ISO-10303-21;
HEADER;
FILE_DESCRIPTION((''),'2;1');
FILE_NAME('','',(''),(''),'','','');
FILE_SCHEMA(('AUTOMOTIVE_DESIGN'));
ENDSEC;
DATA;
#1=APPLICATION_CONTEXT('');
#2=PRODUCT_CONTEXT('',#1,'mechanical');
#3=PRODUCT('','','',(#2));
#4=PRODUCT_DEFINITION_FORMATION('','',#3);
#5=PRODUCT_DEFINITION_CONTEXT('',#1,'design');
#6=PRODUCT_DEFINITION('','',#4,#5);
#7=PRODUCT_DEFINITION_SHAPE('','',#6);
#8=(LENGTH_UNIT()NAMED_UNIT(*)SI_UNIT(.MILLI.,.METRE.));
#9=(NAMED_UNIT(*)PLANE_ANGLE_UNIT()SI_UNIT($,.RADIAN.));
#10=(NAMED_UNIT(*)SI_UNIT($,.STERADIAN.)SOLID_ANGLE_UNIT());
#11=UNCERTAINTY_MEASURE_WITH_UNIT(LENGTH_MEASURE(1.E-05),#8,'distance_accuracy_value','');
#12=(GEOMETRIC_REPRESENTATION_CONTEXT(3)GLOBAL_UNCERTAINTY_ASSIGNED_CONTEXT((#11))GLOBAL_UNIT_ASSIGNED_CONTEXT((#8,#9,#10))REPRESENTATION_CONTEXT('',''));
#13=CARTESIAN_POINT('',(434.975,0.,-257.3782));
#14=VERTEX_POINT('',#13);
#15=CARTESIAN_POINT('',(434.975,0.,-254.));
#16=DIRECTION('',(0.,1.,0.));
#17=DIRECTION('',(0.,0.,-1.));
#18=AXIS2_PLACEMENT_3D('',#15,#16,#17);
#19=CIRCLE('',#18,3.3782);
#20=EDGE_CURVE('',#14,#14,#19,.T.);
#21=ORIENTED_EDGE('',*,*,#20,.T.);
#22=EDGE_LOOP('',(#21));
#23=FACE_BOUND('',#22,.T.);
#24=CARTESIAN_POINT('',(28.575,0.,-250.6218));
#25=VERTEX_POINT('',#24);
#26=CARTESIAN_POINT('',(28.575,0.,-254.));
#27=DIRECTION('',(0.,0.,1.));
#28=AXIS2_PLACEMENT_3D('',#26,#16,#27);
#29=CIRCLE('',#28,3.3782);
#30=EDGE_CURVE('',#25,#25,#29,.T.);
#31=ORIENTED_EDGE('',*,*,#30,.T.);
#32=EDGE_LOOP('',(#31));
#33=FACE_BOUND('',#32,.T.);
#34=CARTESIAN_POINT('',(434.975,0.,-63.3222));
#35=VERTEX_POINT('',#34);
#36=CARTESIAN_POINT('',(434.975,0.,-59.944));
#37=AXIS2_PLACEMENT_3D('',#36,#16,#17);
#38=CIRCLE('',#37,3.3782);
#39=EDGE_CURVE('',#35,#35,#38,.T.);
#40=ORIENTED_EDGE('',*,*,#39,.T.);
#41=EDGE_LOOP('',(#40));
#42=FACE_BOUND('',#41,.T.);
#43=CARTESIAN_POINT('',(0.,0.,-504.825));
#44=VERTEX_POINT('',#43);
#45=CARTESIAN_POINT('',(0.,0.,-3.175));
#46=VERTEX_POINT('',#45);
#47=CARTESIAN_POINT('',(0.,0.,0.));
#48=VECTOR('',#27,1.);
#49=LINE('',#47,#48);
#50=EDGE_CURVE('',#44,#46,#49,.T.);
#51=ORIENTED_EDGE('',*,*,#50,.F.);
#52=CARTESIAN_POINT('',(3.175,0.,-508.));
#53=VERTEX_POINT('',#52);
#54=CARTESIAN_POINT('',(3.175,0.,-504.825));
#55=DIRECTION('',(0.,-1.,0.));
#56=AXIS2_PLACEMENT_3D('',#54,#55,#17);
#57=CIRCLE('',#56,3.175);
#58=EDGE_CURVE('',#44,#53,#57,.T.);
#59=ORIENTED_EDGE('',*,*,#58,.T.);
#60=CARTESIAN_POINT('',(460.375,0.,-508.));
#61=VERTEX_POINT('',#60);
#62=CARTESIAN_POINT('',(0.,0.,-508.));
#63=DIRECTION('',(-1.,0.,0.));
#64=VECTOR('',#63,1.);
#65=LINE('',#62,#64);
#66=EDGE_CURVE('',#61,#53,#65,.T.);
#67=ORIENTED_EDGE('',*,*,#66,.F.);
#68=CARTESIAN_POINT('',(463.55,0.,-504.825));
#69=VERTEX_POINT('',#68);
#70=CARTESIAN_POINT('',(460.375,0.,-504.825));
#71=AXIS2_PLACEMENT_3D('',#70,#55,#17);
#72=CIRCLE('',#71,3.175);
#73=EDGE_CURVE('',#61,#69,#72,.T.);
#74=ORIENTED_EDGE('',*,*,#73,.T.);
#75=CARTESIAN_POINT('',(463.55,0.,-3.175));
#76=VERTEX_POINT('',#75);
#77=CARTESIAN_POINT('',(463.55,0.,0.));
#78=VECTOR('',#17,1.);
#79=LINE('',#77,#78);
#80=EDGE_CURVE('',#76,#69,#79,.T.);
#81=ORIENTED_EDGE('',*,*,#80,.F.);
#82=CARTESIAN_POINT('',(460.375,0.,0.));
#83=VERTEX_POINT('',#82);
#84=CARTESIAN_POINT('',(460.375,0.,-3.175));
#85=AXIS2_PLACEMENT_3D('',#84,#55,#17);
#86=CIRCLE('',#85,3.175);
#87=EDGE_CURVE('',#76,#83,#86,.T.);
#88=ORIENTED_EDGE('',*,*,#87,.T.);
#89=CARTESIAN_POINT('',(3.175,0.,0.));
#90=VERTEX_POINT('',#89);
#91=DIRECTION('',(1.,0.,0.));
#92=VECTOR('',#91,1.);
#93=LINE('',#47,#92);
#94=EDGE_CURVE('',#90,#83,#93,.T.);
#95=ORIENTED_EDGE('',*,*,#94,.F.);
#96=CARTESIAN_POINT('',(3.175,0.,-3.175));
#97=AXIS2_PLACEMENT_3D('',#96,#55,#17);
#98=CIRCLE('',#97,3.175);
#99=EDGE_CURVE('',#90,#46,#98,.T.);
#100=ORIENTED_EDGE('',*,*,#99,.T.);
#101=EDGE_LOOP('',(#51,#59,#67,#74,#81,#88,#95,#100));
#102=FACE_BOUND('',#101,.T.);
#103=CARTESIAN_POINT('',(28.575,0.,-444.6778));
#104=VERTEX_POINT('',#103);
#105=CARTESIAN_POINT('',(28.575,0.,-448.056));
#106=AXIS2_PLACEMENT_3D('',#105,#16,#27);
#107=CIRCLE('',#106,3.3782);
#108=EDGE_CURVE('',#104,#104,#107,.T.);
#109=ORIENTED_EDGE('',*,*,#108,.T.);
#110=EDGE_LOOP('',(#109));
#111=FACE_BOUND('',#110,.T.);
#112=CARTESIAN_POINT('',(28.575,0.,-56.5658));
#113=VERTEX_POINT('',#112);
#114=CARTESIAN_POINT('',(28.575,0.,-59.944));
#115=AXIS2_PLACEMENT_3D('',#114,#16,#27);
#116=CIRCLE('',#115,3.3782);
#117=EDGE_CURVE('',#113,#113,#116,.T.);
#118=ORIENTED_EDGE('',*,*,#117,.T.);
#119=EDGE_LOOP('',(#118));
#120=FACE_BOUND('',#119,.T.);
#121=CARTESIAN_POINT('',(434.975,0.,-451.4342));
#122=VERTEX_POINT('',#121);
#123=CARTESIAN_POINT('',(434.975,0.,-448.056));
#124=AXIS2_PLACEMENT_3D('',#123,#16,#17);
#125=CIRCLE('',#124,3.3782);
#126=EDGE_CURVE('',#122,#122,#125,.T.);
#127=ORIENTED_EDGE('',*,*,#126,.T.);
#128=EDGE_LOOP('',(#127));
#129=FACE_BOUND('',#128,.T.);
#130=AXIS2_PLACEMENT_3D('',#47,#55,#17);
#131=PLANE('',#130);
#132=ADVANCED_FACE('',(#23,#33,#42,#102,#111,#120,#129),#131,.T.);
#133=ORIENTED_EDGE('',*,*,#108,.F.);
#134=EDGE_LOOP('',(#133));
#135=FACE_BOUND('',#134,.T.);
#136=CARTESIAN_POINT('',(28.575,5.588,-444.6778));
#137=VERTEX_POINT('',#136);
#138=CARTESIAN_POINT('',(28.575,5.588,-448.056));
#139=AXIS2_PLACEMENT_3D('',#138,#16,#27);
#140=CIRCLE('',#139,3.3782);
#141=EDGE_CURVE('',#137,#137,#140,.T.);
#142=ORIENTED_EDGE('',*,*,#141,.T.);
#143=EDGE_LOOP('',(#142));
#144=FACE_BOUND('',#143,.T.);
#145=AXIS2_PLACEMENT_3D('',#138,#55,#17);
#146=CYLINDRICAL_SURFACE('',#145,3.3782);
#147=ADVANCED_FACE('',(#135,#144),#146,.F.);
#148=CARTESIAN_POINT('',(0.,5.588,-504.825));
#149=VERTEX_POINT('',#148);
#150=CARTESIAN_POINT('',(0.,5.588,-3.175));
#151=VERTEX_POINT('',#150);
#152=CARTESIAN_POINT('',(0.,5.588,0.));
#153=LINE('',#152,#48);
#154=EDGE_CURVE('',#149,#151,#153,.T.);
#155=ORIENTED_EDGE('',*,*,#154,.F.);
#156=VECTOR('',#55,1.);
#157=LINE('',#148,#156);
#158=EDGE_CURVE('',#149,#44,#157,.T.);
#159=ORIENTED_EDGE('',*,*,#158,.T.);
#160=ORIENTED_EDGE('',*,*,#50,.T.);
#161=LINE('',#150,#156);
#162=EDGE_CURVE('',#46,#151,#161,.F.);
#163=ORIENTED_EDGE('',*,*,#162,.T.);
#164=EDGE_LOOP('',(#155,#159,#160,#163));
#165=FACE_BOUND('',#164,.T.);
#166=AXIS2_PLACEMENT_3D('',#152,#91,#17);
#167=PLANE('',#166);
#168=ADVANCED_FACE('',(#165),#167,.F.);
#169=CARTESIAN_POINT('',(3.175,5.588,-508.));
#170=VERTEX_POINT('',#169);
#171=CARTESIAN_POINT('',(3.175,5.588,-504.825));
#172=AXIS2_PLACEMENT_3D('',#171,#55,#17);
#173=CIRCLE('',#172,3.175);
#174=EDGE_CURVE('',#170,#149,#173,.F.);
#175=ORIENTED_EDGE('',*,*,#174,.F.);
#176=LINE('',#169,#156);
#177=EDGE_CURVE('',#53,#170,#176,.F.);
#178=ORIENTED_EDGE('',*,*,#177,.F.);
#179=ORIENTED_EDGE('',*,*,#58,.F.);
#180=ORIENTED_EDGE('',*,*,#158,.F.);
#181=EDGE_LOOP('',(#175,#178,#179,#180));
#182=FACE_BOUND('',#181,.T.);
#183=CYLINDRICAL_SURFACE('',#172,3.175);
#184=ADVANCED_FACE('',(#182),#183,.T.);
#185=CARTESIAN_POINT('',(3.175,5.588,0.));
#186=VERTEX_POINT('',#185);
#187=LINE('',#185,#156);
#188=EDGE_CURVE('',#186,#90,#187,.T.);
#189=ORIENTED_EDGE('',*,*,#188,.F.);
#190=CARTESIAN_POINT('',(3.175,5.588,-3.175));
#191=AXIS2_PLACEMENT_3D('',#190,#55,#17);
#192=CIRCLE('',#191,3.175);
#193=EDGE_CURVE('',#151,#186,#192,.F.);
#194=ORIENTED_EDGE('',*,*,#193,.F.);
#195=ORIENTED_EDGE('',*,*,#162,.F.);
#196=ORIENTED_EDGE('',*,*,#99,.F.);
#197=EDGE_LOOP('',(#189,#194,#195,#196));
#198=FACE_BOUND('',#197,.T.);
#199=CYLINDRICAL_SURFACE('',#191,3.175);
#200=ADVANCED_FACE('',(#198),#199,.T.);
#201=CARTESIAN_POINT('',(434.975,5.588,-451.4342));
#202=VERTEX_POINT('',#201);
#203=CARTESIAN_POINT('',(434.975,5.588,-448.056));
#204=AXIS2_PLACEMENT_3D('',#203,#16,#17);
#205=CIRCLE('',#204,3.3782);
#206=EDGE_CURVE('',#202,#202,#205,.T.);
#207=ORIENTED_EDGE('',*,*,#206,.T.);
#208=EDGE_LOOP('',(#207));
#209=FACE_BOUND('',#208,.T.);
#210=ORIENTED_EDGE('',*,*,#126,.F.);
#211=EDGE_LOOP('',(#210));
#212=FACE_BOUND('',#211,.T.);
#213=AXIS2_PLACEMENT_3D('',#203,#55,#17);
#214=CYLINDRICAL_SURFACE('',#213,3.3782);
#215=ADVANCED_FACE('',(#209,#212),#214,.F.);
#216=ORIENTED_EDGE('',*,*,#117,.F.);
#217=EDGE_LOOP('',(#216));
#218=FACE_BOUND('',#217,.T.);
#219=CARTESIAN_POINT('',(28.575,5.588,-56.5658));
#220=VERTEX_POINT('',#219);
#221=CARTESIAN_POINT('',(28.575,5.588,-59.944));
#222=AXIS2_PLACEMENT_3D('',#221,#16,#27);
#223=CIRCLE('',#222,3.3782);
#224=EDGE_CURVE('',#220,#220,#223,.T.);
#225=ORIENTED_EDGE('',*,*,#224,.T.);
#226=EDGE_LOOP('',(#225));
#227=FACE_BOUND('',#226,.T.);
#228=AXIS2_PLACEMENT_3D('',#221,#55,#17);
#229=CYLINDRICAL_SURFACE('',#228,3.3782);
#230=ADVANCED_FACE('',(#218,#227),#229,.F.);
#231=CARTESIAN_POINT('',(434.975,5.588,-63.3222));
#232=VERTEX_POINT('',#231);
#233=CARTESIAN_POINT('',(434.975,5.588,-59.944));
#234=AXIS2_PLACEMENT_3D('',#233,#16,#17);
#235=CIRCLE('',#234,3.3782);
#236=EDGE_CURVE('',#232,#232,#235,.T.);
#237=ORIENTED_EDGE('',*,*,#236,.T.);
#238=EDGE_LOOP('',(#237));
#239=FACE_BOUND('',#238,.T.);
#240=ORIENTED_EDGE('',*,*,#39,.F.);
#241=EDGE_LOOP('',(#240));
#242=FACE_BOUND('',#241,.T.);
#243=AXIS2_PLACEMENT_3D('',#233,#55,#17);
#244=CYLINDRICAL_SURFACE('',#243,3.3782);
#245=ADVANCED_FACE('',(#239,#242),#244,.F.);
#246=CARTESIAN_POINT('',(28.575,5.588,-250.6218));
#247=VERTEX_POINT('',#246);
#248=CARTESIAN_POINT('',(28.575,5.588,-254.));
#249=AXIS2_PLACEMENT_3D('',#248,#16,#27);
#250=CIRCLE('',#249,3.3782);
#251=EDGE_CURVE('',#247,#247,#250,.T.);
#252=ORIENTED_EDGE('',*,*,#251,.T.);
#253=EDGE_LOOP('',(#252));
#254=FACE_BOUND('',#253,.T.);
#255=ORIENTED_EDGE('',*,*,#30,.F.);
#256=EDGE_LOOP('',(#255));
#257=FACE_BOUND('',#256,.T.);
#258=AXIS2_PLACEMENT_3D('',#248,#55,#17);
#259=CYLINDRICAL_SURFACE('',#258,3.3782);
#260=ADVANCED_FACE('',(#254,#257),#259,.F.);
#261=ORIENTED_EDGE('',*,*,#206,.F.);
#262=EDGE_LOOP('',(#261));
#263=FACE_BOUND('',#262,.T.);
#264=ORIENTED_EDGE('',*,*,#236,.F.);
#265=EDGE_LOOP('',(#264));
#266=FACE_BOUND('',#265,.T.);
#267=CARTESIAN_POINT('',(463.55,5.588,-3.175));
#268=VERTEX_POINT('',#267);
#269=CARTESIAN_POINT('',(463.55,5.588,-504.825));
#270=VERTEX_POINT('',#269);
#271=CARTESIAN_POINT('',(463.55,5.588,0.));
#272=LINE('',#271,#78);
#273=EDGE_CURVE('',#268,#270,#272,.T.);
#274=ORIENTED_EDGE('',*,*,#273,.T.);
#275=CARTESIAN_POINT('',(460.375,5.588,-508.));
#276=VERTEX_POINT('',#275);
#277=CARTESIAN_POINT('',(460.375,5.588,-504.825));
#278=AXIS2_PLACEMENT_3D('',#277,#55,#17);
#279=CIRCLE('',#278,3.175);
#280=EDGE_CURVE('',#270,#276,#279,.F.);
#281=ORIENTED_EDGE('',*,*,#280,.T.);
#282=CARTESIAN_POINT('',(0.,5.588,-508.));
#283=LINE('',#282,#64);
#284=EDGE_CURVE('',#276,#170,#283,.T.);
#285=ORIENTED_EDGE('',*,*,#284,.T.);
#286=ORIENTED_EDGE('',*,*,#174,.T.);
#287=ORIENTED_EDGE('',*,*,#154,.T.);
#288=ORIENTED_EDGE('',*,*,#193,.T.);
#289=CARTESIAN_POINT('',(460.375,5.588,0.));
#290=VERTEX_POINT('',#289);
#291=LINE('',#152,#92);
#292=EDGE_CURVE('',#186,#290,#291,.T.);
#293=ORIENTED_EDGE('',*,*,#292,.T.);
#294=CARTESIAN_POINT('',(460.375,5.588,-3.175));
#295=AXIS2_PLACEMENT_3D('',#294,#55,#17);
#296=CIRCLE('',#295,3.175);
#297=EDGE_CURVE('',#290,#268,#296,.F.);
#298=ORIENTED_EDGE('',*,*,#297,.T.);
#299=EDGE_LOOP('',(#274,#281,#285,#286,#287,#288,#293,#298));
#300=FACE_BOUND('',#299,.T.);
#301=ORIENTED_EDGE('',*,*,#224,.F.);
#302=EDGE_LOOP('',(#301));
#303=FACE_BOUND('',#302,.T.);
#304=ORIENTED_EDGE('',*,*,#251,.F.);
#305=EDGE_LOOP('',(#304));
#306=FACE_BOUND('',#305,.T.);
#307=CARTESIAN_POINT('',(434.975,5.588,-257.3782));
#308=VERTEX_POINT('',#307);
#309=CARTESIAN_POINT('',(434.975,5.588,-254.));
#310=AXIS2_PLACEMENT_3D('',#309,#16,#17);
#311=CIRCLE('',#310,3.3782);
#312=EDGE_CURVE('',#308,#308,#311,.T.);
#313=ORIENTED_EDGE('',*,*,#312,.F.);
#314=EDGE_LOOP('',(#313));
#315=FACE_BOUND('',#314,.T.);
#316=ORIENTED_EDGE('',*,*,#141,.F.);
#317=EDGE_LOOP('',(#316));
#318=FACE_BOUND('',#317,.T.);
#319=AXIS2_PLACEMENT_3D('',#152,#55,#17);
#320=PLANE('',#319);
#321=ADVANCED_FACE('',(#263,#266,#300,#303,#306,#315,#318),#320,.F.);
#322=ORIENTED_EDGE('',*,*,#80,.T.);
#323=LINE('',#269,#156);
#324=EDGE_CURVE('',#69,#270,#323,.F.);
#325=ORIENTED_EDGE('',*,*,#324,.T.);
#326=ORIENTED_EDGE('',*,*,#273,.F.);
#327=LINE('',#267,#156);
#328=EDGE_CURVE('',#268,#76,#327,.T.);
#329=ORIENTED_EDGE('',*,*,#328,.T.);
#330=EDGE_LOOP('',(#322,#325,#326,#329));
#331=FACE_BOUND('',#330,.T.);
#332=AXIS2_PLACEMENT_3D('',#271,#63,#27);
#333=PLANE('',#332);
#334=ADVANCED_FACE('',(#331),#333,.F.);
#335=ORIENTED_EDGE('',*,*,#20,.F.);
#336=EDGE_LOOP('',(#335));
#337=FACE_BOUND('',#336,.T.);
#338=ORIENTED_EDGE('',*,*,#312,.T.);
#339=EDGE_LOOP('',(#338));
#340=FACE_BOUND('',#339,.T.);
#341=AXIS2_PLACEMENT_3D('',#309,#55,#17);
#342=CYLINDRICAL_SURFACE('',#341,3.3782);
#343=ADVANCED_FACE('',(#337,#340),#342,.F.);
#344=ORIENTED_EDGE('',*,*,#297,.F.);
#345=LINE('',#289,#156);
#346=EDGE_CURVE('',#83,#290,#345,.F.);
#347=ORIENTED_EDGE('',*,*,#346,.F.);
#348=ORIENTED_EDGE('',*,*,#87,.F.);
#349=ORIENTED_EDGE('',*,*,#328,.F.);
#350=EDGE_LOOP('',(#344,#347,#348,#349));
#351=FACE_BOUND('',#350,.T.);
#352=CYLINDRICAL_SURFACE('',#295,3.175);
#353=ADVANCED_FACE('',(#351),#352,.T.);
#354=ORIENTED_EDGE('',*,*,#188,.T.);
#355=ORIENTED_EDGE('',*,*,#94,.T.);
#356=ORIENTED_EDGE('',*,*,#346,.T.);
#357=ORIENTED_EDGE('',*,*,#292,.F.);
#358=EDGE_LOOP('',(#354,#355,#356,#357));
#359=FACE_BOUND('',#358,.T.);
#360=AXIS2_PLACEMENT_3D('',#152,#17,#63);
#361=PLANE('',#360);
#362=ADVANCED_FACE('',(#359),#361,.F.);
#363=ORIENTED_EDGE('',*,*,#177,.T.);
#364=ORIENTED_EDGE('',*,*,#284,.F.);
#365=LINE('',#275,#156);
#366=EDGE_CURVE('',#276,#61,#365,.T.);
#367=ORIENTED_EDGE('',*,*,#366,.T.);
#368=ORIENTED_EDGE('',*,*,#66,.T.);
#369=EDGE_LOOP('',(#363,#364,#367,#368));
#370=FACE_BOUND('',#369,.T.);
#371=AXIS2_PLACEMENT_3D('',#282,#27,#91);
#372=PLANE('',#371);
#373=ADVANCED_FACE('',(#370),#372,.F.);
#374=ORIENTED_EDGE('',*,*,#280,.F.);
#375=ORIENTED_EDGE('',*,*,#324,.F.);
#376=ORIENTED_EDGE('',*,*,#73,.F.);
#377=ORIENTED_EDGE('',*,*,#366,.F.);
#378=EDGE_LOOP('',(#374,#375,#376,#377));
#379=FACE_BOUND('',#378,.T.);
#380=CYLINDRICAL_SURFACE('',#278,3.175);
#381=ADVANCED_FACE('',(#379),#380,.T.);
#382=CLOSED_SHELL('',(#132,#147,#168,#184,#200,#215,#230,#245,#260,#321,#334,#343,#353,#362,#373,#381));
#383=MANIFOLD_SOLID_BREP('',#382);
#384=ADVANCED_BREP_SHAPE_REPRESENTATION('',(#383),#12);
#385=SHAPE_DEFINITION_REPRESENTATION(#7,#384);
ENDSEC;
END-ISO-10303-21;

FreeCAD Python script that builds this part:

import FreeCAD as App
import Part
import Sketcher
from FreeCAD import Vector
Q = App.Units.Quantity


def edges_at(feature, points):
    """Names of the edges that pass closest to the given points."""
    edges = feature.Shape.Edges
    near = lambda p: min(range(len(edges)), key=lambda i: edges[i].distToShape(Part.Vertex(*p))[0])
    return sorted({f"Edge{near(p) + 1}" for p in points})


def add_polygon(sketch, points):
    """Adds a closed chain of lines whose ends are joined by coincident constraints."""
    first, n = sketch.GeometryCount, len(points)
    for a, b in zip(points, points[1:] + points[:1]):
        sketch.addGeometry(Part.LineSegment(App.Vector(*a, 0), App.Vector(*b, 0)), False)
    for i in range(n):
        sketch.addConstraint(Sketcher.Constraint("Coincident", first + i, 2, first + (i + 1) % n, 1))

doc = App.newDocument("Part")
body = doc.addObject("PartDesign::Body", "Body")

sketch1 = doc.addObject("Sketcher::SketchObject", "Sketch")
body.addObject(sketch1)
sketch1.AttachmentSupport = (doc.XZ_Plane, [""])
sketch1.MapMode = "FlatFace"
add_polygon(sketch1, [(0, -508), (0, 0), (463.55, 0), (463.55, -508)])
sketch1.addGeometry(Part.Circle(Vector(28.575, -59.944, 0), Vector(0, 0, 1), 3.3782), False)
sketch1.addGeometry(Part.Circle(Vector(434.975, -59.944, 0), Vector(0, 0, 1), 3.3782), False)
sketch1.addGeometry(Part.Circle(Vector(28.575, -254, 0), Vector(0, 0, 1), 3.3782), False)
sketch1.addGeometry(Part.Circle(Vector(28.575, -448.056, 0), Vector(0, 0, 1), 3.3782), False)
sketch1.addGeometry(Part.Circle(Vector(434.975, -254, 0), Vector(0, 0, 1), 3.3782), False)
sketch1.addGeometry(Part.Circle(Vector(434.975, -448.056, 0), Vector(0, 0, 1), 3.3782), False)
sketch1.addConstraint(Sketcher.Constraint("Vertical", 0))
sketch1.addConstraint(Sketcher.Constraint("Horizontal", 1))
sketch1.addConstraint(Sketcher.Constraint("Vertical", 2))
sketch1.addConstraint(Sketcher.Constraint("Horizontal", 3))
sketch1.addConstraint(Sketcher.Constraint("Coincident", 0, 2, -1, 1))
sketch1.addConstraint(Sketcher.Constraint("Equal", 4, 5))
sketch1.addConstraint(Sketcher.Constraint("Equal", 5, 6))
sketch1.addConstraint(Sketcher.Constraint("Equal", 6, 7))
sketch1.addConstraint(Sketcher.Constraint("Equal", 7, 8))
sketch1.addConstraint(Sketcher.Constraint("Equal", 8, 9))
sketch1.addConstraint(Sketcher.Constraint("Horizontal", 4, 3, 5, 3))
sketch1.addConstraint(Sketcher.Constraint("Horizontal", 6, 3, 8, 3))
sketch1.addConstraint(Sketcher.Constraint("Horizontal", 7, 3, 9, 3))
sketch1.addConstraint(Sketcher.Constraint("Vertical", 4, 3, 6, 3))
sketch1.addConstraint(Sketcher.Constraint("Vertical", 6, 3, 7, 3))
sketch1.addConstraint(Sketcher.Constraint("Vertical", 5, 3, 8, 3))
sketch1.addConstraint(Sketcher.Constraint("Vertical", 8, 3, 9, 3))
sketch1.addConstraint(Sketcher.Constraint("DistanceY", 0, 1, 0, 2, Q("20 in")))
sketch1.addConstraint(Sketcher.Constraint("Diameter", 4, Q("0.266 in")))
sketch1.addConstraint(Sketcher.Constraint("DistanceY", 6, 3, -1, 1, Q("10 in")))
sketch1.addConstraint(Sketcher.Constraint("DistanceX", 4, 3, 5, 3, Q("16 in")))
sketch1.addConstraint(Sketcher.Constraint("DistanceX", 1, 1, 1, 2, Q("18.25 in")))
sketch1.addConstraint(Sketcher.Constraint("DistanceY", 4, 3, -1, 1, Q("2.36 in")))
sketch1.addConstraint(Sketcher.Constraint("DistanceY", 7, 3, -1, 1, Q("17.64 in")))
sketch1.addConstraint(Sketcher.Constraint("DistanceX", -1, 1, 4, 3, Q("1.125 in")))
pad1 = doc.addObject("PartDesign::Pad", "Pad")
body.addObject(pad1)
pad1.Profile = sketch1
pad1.Length = Q("0.22 in")
pad1.Reversed = True
doc.recompute()

fillet = doc.addObject("PartDesign::Fillet", "Fillet")
body.addObject(fillet)
fillet.Base = (pad1, edges_at(pad1, [
    (0, 2.794, -508),
    (463.55, 2.794, -508),
    (463.55, 2.794, 0),
    (0, 2.794, 0),
]))
fillet.Radius = Q("0.125 in")

doc.recompute()
